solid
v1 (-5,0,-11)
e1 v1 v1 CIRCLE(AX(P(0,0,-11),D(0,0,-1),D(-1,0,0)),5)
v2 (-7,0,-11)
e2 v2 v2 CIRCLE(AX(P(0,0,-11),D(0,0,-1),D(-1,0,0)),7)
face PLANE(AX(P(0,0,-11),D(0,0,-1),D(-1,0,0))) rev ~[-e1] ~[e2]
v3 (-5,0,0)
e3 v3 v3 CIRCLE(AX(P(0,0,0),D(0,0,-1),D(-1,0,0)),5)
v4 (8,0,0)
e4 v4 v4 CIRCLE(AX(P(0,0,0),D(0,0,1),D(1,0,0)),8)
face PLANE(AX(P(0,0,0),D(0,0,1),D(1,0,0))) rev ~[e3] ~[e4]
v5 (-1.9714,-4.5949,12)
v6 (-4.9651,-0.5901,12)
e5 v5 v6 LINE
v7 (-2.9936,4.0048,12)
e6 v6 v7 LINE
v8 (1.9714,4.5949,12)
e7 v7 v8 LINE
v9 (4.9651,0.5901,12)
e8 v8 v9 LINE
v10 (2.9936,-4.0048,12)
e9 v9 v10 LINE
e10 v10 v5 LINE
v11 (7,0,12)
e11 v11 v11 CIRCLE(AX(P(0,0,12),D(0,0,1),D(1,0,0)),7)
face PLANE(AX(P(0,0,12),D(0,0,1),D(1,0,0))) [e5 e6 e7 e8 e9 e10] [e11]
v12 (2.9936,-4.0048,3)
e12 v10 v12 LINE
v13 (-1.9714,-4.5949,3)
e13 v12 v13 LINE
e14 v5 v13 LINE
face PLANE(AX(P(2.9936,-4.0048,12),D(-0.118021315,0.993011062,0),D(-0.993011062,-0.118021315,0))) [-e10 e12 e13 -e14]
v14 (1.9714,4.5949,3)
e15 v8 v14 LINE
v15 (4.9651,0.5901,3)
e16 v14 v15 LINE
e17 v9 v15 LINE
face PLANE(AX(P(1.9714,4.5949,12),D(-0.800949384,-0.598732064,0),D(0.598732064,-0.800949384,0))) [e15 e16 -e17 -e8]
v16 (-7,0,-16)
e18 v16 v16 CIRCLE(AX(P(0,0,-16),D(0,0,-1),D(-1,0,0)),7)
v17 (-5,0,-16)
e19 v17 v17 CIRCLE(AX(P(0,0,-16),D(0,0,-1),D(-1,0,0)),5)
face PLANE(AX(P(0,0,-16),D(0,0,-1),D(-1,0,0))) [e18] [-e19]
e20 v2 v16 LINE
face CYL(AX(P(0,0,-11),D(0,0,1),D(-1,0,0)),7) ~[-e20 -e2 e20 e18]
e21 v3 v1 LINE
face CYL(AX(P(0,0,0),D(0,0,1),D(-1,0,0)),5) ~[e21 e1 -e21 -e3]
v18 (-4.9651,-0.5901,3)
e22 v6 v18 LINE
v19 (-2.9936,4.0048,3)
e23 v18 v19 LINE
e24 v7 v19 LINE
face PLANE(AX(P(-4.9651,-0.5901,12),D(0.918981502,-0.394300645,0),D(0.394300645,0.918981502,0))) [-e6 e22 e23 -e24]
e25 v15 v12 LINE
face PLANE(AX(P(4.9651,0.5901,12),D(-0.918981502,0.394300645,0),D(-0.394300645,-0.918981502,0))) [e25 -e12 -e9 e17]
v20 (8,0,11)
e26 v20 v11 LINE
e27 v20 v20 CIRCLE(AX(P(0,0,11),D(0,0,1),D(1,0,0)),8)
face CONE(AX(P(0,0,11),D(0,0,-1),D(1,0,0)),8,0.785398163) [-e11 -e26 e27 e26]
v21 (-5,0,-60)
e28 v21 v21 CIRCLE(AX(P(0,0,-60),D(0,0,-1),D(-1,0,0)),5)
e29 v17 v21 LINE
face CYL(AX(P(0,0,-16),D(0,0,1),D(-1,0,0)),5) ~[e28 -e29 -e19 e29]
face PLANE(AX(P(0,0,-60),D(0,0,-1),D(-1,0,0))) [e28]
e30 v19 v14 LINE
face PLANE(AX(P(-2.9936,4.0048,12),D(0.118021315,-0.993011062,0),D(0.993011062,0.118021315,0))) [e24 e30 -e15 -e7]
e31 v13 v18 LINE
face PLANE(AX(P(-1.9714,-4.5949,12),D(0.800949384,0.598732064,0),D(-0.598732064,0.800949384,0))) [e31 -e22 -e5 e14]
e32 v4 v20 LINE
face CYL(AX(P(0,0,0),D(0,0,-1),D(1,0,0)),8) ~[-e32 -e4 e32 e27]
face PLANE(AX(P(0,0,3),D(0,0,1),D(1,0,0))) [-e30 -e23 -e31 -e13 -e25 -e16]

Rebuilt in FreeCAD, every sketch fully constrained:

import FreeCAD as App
import Part
import Sketcher

V = App.Vector
Q = App.Units.Quantity


def edges_at(feature, points):
    """Names of the edges that pass closest to the given points."""
    edges = feature.Shape.Edges
    near = lambda p: min(range(len(edges)), key=lambda i: edges[i].distToShape(Part.Vertex(*p))[0])
    return sorted({f"Edge{near(p) + 1}" for p in points})


def add_polygon(sketch, points):
    """Adds a closed chain of lines whose ends are joined by coincident constraints."""
    first, n = sketch.GeometryCount, len(points)
    for a, b in zip(points, points[1:] + points[:1]):
        sketch.addGeometry(Part.LineSegment(App.Vector(*a, 0), App.Vector(*b, 0)), False)
    for i in range(n):
        sketch.addConstraint(Sketcher.Constraint("Coincident", first + i, 2, first + (i + 1) % n, 1))

doc = App.newDocument("Part")
body = doc.addObject("PartDesign::Body", "Body")

sketch1 = doc.addObject("Sketcher::SketchObject", "Sketch")
body.addObject(sketch1)
sketch1.AttachmentSupport = (doc.XY_Plane, [""])
sketch1.MapMode = "FlatFace"
sketch1.addGeometry(Part.Circle(V(0, 0, 0), V(0, 0, 1), 8), False)
sketch1.addConstraint([
    Sketcher.Constraint("Coincident", 0, 3, -1, 1),
    Sketcher.Constraint("Diameter", 0, 16.0),
])
pad1 = doc.addObject("PartDesign::Pad", "Pad")
body.addObject(pad1)
pad1.Profile = sketch1
pad1.Length = 12

sketch2 = doc.addObject("Sketcher::SketchObject", "Sketch001")
body.addObject(sketch2)
sketch2.AttachmentSupport = (doc.XY_Plane, [""])
sketch2.MapMode = "FlatFace"
sketch2.AttachmentOffset = App.Placement(V(0, 0, 12), App.Rotation())
add_polygon(sketch2, [(3, -4), (5, 0.6), (2, 4.6), (-3, 4), (-5, -0.6), (-2, -4.6)])
sketch2.addConstraint([
    Sketcher.Constraint("Symmetric", 0, 2, 3, 2, -1, 1),
    Sketcher.Constraint("Symmetric", 1, 2, 4, 2, -1, 1),
    Sketcher.Constraint("Symmetric", 2, 2, 5, 2, -1, 1),
    Sketcher.Constraint("Equal", 0, 1),
    Sketcher.Constraint("Equal", 1, 2),
    Sketcher.Constraint("Distance", 0, 5.0),
    Sketcher.Constraint("Angle", 1, Q("126.7791 deg")),
    Sketcher.Constraint("DistanceY", -1, 1, 0, 2, 0.59),
    Sketcher.Constraint("DistanceY", 2, 2, 1, 2, 0.59),
])
pocket1 = doc.addObject("PartDesign::Pocket", "Pocket")
body.addObject(pocket1)
pocket1.Profile = sketch2
pocket1.Length = 9

sketch3 = doc.addObject("Sketcher::SketchObject", "Sketch002")
body.addObject(sketch3)
sketch3.AttachmentSupport = (doc.XY_Plane, [""])
sketch3.MapMode = "FlatFace"
sketch3.addGeometry(Part.Circle(V(0, 0, 0), V(0, 0, 1), 5), False)
sketch3.addConstraint([
    Sketcher.Constraint("Coincident", 0, 3, -1, 1),
    Sketcher.Constraint("Diameter", 0, 10.0),
])
pad2 = doc.addObject("PartDesign::Pad", "Pad001")
body.addObject(pad2)
pad2.Profile = sketch3
pad2.Length = 11
pad2.Reversed = True

sketch4 = doc.addObject("Sketcher::SketchObject", "Sketch003")
body.addObject(sketch4)
sketch4.AttachmentSupport = (doc.XY_Plane, [""])
sketch4.MapMode = "FlatFace"
sketch4.AttachmentOffset = App.Placement(V(0, 0, -11), App.Rotation())
sketch4.addGeometry(Part.Circle(V(0, 0, 0), V(0, 0, 1), 7), False)
sketch4.addConstraint([
    Sketcher.Constraint("Coincident", 0, 3, -1, 1),
    Sketcher.Constraint("Diameter", 0, 14.0),
])
pad3 = doc.addObject("PartDesign::Pad", "Pad002")
body.addObject(pad3)
pad3.Profile = sketch4
pad3.Length = 5
pad3.Reversed = True

sketch5 = doc.addObject("Sketcher::SketchObject", "Sketch004")
body.addObject(sketch5)
sketch5.AttachmentSupport = (doc.XY_Plane, [""])
sketch5.MapMode = "FlatFace"
sketch5.AttachmentOffset = App.Placement(V(0, 0, -16), App.Rotation())
sketch5.addGeometry(Part.Circle(V(0, 0, 0), V(0, 0, 1), 5), False)
sketch5.addConstraint([
    Sketcher.Constraint("Coincident", 0, 3, -1, 1),
    Sketcher.Constraint("Diameter", 0, 10.0),
])
pad4 = doc.addObject("PartDesign::Pad", "Pad003")
body.addObject(pad4)
pad4.Profile = sketch5
pad4.Length = 44
pad4.Reversed = True
doc.recompute()

chamfer = doc.addObject("PartDesign::Chamfer", "Chamfer")
body.addObject(chamfer)
chamfer.Base = (pad4, edges_at(pad4, [(-8, 0, 12)]))
chamfer.Size = 1

doc.recompute()
